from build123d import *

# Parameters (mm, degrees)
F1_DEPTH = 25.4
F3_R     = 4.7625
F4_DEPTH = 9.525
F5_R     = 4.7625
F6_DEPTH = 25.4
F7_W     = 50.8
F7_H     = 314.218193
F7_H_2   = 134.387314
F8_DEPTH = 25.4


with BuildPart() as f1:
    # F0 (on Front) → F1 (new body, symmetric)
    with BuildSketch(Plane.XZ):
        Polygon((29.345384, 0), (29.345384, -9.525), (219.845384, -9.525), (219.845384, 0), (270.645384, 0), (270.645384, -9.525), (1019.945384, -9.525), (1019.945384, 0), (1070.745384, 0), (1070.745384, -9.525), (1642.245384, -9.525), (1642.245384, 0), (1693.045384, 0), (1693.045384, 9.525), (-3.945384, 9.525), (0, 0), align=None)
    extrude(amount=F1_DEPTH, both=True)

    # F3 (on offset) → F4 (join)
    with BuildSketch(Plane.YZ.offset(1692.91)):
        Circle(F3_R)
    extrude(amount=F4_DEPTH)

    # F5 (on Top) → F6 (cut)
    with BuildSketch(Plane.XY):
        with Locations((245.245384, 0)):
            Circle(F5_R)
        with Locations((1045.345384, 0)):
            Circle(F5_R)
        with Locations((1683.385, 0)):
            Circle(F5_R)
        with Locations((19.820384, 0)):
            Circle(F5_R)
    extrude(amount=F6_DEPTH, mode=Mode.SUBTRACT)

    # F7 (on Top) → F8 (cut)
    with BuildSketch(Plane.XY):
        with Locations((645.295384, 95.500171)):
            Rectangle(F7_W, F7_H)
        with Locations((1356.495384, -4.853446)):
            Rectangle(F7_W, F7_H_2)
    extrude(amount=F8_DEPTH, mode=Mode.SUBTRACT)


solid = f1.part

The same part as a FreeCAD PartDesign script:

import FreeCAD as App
import Part
import Sketcher

V = App.Vector
Q = App.Units.Quantity


def add_polygon(sketch, points):
    """Adds a closed chain of lines whose ends are joined by coincident constraints."""
    first, n = sketch.GeometryCount, len(points)
    for a, b in zip(points, points[1:] + points[:1]):
        sketch.addGeometry(Part.LineSegment(App.Vector(*a, 0), App.Vector(*b, 0)), False)
    for i in range(n):
        sketch.addConstraint(Sketcher.Constraint("Coincident", first + i, 2, first + (i + 1) % n, 1))

doc = App.newDocument("Part")
body = doc.addObject("PartDesign::Body", "Body")

sketch1 = body.newObject("Sketcher::SketchObject", "Sketch")
sketch1.AttachmentSupport = (doc.getObject("XZ_Plane"), [""])
sketch1.MapMode = "FlatFace"
add_polygon(sketch1, [(29, 0), (29, -10), (220, -10), (220, 0), (271, 0), (271, -10), (1020, -10), (1020, 0), (1071, 0), (1071, -10), (1642, -10), (1642, 0), (1693, 0), (1693, 10), (-4, 10), (0, 0)])
sketch1.addConstraint([
    Sketcher.Constraint("Vertical", 0),
    Sketcher.Constraint("Horizontal", 1),
    Sketcher.Constraint("Vertical", 2),
    Sketcher.Constraint("Horizontal", 3),
    Sketcher.Constraint("Vertical", 4),
    Sketcher.Constraint("Horizontal", 5),
    Sketcher.Constraint("Vertical", 6),
    Sketcher.Constraint("Horizontal", 7),
    Sketcher.Constraint("Vertical", 8),
    Sketcher.Constraint("Horizontal", 9),
    Sketcher.Constraint("Vertical", 10),
    Sketcher.Constraint("Horizontal", 11),
    Sketcher.Constraint("Vertical", 12),
    Sketcher.Constraint("Horizontal", 13),
    Sketcher.Constraint("Horizontal", 15),
    Sketcher.Constraint("Coincident", 14, 2, -1, 1),
    Sketcher.Constraint("PointOnObject", 2, 2, -1),
    Sketcher.Constraint("PointOnObject", 6, 2, -1),
    Sketcher.Constraint("PointOnObject", 10, 2, -1),
    Sketcher.Constraint("Horizontal", 1, 2, 4, 2),
    Sketcher.Constraint("Horizontal", 5, 2, 8, 2),
    Sketcher.Constraint("Equal", 3, 7),
    Sketcher.Constraint("Equal", 7, 11),
    Sketcher.Constraint("Equal", 10, 12),
    Sketcher.Constraint("DistanceX", 3, 1, 3, 2, Q("2 in")),
    Sketcher.Constraint("DistanceX", 1, 1, 1, 2, Q("7.5 in")),
    Sketcher.Constraint("DistanceX", 5, 1, 5, 2, Q("29.5 in")),
    Sketcher.Constraint("DistanceX", 9, 1, 9, 2, Q("22.5 in")),
    Sketcher.Constraint("Angle", 14, Q("-67.500001 deg")),
    Sketcher.Constraint("DistanceY", 0, 2, 0, 1, Q("0.375 in")),
    Sketcher.Constraint("DistanceX", 13, 2, 13, 1, 1696.990768),
])
pad1 = body.newObject("PartDesign::Pad", "Pad")
pad1.Profile = sketch1
pad1.Length = Q("2 in")
pad1.Midplane = True

sketch2 = body.newObject("Sketcher::SketchObject", "Sketch001")
sketch2.AttachmentSupport = (doc.getObject("YZ_Plane"), [""])
sketch2.MapMode = "FlatFace"
sketch2.AttachmentOffset = App.Placement(V(0, 0, 66.65 * 25.4), App.Rotation())
sketch2.addGeometry(Part.Circle(V(0, 0, 0), V(0, 0, 1), 4.8), False)
sketch2.addConstraint([
    Sketcher.Constraint("Coincident", 0, 3, -1, 1),
    Sketcher.Constraint("Diameter", 0, Q("0.375 in")),
])
pad2 = body.newObject("PartDesign::Pad", "Pad001")
pad2.Profile = sketch2
pad2.Length = Q("0.375 in")

sketch3 = body.newObject("Sketcher::SketchObject", "Sketch002")
sketch3.AttachmentSupport = (doc.getObject("XY_Plane"), [""])
sketch3.MapMode = "FlatFace"
sketch3.addGeometry([
    Part.Circle(V(245.2, 0, 0), V(0, 0, 1), 4.8),
    Part.Circle(V(1045.3, 0, 0), V(0, 0, 1), 4.8),
    Part.Circle(V(1683.4, 0, 0), V(0, 0, 1), 4.8),
    Part.Circle(V(19.8, 0, 0), V(0, 0, 1), 4.8),
], False)
sketch3.addConstraint([
    Sketcher.Constraint("Equal", 0, 1),
    Sketcher.Constraint("Equal", 1, 2),
    Sketcher.Constraint("Equal", 2, 3),
    Sketcher.Constraint("PointOnObject", 0, 3, -1),
    Sketcher.Constraint("PointOnObject", 1, 3, -1),
    Sketcher.Constraint("PointOnObject", 2, 3, -1),
    Sketcher.Constraint("PointOnObject", 3, 3, -1),
    Sketcher.Constraint("Diameter", 0, Q("0.375 in")),
    Sketcher.Constraint("DistanceX", 0, 3, 1, 3, Q("31.5 in")),
    Sketcher.Constraint("DistanceX", -1, 1, 2, 3, Q("66.275 in")),
    Sketcher.Constraint("DistanceX", 3, 3, 0, 3, Q("8.875 in")),
    Sketcher.Constraint("DistanceX", -1, 1, 0, 3, 245.245384),
])
pocket1 = body.newObject("PartDesign::Pocket", "Pocket")
pocket1.Profile = sketch3
pocket1.Length = Q("1 in")
pocket1.Reversed = True

sketch4 = body.newObject("Sketcher::SketchObject", "Sketch003")
sketch4.AttachmentSupport = (doc.getObject("XY_Plane"), [""])
sketch4.MapMode = "FlatFace"
add_polygon(sketch4, [(620, 253), (620, -62), (671, -62), (671, 253)])
add_polygon(sketch4, [(1331, 62), (1331, -72), (1382, -72), (1382, 62)])
sketch4.addConstraint([
    Sketcher.Constraint("Vertical", 0),
    Sketcher.Constraint("Horizontal", 1),
    Sketcher.Constraint("Vertical", 2),
    Sketcher.Constraint("Horizontal", 3),
    Sketcher.Constraint("Vertical", 4),
    Sketcher.Constraint("Horizontal", 5),
    Sketcher.Constraint("Vertical", 6),
    Sketcher.Constraint("Horizontal", 7),
    Sketcher.Constraint("Equal", 3, 5),
    Sketcher.Constraint("DistanceX", 1, 1, 1, 2, Q("2 in")),
    Sketcher.Constraint("DistanceX", 1, 2, 4, 2, Q("26 in")),
    Sketcher.Constraint("DistanceY", 4, 2, -1, 1, Q("2.8365001 in")),
    Sketcher.Constraint("DistanceY", 0, 2, 0, 1, 314.218193),
    Sketcher.Constraint("DistanceY", 4, 2, 4, 1, 134.387314),
    Sketcher.Constraint("DistanceY", 4, 2, 2, 2, 324.65637),
    Sketcher.Constraint("DistanceX", -1, 1, 0, 2, 619.895384),
])
pocket2 = body.newObject("PartDesign::Pocket", "Pocket001")
pocket2.Profile = sketch4
pocket2.Length = Q("1 in")
pocket2.Reversed = True

doc.recompute()
